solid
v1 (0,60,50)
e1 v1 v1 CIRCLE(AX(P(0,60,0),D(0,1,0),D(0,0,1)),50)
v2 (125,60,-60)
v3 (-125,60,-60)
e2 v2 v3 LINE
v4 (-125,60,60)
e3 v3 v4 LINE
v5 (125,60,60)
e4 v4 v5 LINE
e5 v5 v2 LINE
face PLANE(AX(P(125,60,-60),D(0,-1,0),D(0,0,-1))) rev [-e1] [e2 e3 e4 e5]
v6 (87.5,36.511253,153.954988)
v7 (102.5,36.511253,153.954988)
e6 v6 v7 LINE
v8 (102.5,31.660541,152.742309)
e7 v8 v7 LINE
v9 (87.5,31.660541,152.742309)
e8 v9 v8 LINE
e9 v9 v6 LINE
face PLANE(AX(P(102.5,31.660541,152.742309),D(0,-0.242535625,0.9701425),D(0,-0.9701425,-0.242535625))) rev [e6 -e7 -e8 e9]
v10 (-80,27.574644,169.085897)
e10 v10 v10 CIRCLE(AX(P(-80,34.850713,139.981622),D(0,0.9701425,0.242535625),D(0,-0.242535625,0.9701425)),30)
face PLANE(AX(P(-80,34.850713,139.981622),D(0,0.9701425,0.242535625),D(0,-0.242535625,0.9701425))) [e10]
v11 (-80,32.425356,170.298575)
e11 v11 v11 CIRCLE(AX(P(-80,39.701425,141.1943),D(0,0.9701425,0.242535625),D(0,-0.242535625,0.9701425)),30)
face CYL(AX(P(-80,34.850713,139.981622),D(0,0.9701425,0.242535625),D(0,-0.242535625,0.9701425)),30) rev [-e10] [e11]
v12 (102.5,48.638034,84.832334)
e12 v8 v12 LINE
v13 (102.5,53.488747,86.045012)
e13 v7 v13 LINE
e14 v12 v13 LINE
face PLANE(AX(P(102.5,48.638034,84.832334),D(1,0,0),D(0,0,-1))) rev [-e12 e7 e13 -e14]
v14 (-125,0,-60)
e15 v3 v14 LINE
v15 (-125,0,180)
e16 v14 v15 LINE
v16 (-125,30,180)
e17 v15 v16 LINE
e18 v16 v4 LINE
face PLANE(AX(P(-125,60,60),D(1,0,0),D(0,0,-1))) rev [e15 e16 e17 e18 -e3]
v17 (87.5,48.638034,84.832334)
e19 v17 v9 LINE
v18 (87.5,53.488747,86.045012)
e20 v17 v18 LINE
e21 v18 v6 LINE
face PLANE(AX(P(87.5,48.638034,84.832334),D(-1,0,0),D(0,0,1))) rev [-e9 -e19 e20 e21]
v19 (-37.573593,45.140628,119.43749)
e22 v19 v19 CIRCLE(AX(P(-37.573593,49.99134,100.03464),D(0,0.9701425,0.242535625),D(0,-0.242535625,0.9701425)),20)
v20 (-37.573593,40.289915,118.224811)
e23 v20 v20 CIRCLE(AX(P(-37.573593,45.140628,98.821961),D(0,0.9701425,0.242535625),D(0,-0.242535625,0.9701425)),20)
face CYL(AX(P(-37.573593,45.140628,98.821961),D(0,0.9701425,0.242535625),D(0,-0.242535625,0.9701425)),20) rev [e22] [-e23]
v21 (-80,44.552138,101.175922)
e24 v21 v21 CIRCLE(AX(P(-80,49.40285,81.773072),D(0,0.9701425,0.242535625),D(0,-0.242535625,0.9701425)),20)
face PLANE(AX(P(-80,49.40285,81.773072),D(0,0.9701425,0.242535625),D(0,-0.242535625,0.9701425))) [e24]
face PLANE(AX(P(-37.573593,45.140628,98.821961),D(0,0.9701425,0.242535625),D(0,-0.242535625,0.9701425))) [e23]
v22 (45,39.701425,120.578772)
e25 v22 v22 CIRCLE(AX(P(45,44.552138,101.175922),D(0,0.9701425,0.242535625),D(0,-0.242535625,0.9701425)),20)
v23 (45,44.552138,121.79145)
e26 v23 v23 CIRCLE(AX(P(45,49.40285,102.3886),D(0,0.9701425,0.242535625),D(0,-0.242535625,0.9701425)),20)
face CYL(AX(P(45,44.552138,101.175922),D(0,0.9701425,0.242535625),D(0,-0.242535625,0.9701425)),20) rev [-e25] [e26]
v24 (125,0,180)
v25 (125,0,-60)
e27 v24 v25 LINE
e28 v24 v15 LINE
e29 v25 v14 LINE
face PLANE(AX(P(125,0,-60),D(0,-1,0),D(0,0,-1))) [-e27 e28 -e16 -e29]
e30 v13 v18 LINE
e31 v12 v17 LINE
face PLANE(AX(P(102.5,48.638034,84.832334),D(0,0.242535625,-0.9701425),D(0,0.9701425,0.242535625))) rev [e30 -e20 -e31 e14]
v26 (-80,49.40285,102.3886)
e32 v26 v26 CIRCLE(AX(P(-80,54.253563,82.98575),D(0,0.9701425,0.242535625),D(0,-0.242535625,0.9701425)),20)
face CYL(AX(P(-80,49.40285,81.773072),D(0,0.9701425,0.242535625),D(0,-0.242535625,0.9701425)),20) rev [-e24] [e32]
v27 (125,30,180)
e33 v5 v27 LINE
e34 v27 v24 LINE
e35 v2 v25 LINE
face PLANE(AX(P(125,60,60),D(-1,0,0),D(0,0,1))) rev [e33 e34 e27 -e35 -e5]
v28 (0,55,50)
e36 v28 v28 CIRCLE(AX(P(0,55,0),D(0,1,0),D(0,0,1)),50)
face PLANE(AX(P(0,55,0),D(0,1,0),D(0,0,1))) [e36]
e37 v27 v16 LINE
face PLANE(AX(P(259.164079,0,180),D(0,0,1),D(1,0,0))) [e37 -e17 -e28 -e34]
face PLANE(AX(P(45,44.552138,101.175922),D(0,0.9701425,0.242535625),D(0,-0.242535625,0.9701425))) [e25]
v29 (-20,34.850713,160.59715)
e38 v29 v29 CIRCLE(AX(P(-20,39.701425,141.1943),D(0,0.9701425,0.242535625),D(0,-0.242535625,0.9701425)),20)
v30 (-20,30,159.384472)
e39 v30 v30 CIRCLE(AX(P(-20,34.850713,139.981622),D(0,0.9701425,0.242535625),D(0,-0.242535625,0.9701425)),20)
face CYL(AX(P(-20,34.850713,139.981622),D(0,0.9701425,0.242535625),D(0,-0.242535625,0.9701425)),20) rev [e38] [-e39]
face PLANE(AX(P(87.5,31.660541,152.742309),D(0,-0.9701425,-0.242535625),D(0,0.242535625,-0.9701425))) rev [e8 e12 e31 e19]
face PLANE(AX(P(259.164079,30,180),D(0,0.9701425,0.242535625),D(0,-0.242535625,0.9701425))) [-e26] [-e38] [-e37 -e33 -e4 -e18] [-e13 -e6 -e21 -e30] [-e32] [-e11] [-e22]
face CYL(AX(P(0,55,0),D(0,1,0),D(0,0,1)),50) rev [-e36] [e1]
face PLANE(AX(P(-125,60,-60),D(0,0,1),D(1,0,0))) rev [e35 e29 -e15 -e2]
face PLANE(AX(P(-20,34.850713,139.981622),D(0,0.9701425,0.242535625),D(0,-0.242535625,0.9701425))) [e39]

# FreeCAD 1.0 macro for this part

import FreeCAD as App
import Part
import Sketcher
from FreeCAD import Vector
Q = App.Units.Quantity


def add_polygon(sketch, points):
    """Adds a closed chain of lines whose ends are joined by coincident constraints."""
    first, n = sketch.GeometryCount, len(points)
    for a, b in zip(points, points[1:] + points[:1]):
        sketch.addGeometry(Part.LineSegment(App.Vector(*a, 0), App.Vector(*b, 0)), False)
    for i in range(n):
        sketch.addConstraint(Sketcher.Constraint("Coincident", first + i, 2, first + (i + 1) % n, 1))

doc = App.newDocument("Part")
body = doc.addObject("PartDesign::Body", "Body")

# Sketch on XZ plane
sketch1 = doc.addObject("Sketcher::SketchObject", "Sketch")
body.addObject(sketch1)
sketch1.AttachmentSupport = (doc.XZ_Plane, [""])
sketch1.MapMode = "FlatFace"
add_polygon(sketch1, [(-125, -60), (-125, 60), (125, 60), (125, -60)])  # lines 0-3
sketch1.addConstraint(Sketcher.Constraint("Vertical", 0))
sketch1.addConstraint(Sketcher.Constraint("Horizontal", 1))
sketch1.addConstraint(Sketcher.Constraint("Vertical", 2))
sketch1.addConstraint(Sketcher.Constraint("Horizontal", 3))
sketch1.addConstraint(Sketcher.Constraint("Symmetric", 0, 2, 2, 2, -1, 1))
sketch1.addConstraint(Sketcher.Constraint("DistanceX", 1, 1, 1, 2, Q("250 mm")))
sketch1.addConstraint(Sketcher.Constraint("DistanceY", 0, 1, 0, 2, Q("120 mm")))
pad1 = doc.addObject("PartDesign::Pad", "Pad")
body.addObject(pad1)
pad1.Profile = sketch1
pad1.Length = 60
pad1.Reversed = True

# Sketch on YZ plane
sketch2 = doc.addObject("Sketcher::SketchObject", "Sketch001")
body.addObject(sketch2)
sketch2.AttachmentSupport = (doc.YZ_Plane, [""])
sketch2.MapMode = "FlatFace"
sketch2.AttachmentOffset = App.Placement(Vector(0, 0, -125), App.Rotation())
add_polygon(sketch2, [(60, 60), (0, 60), (0, 180), (30, 180)])  # lines 0-3
sketch2.addConstraint(Sketcher.Constraint("Horizontal", 0))
sketch2.addConstraint(Sketcher.Constraint("Vertical", 1))
sketch2.addConstraint(Sketcher.Constraint("Horizontal", 2))
sketch2.addConstraint(Sketcher.Constraint("PointOnObject", 0, 2, -2))
sketch2.addConstraint(Sketcher.Constraint("DistanceX", 0, 2, 0, 1, Q("60 mm")))
sketch2.addConstraint(Sketcher.Constraint("DistanceX", 2, 1, 2, 2, Q("30 mm")))
sketch2.addConstraint(Sketcher.Constraint("DistanceY", 1, 1, 1, 2, Q("120 mm")))
sketch2.addConstraint(Sketcher.Constraint("DistanceY", -1, 1, 0, 2, Q("60 mm")))
pad2 = doc.addObject("PartDesign::Pad", "Pad001")
body.addObject(pad2)
pad2.Profile = sketch2
pad2.Length = 250

# Sketch on XZ plane
sketch3 = doc.addObject("Sketcher::SketchObject", "Sketch002")
body.addObject(sketch3)
sketch3.AttachmentSupport = (doc.XZ_Plane, [""])
sketch3.MapMode = "FlatFace"
sketch3.AttachmentOffset = App.Placement(Vector(0, 0, -60), App.Rotation())
sketch3.addGeometry(Part.Circle(Vector(0, 0, 0), Vector(0, 0, 1), 50), False)
sketch3.addConstraint(Sketcher.Constraint("Coincident", 0, 3, -1, 1))
sketch3.addConstraint(Sketcher.Constraint("Diameter", 0, Q("100 mm")))
pocket1 = doc.addObject("PartDesign::Pocket", "Pocket")
body.addObject(pocket1)
pocket1.Profile = sketch3
pocket1.Length = 5
pocket1.Reversed = True

# Sketch on an angled plane
sketch4 = doc.addObject("Sketcher::SketchObject", "Sketch003")
body.addObject(sketch4)
sketch4.Placement = App.Placement(Vector(0, 70.588235, 17.647059), App.Rotation(Vector(-1, 0, 0), Vector(0, -0.242535625, 0.9701425), Vector(0, 0.9701425, 0.242535625), "ZXY"))
sketch4.addGeometry(Part.Circle(Vector(80, 127, 0), Vector(0, 0, 1), 30), False)  # 0
sketch4.addGeometry(Part.Circle(Vector(80, 67, 0), Vector(0, 0, 1), 20), False)  # 1
sketch4.addGeometry(Part.Circle(Vector(38, 85, 0), Vector(0, 0, 1), 20), False)  # 2
sketch4.addGeometry(Part.Circle(Vector(20, 127, 0), Vector(0, 0, 1), 20), False)  # 3
sketch4.addGeometry(Part.Circle(Vector(-45, 87, 0), Vector(0, 0, 1), 20), False)  # 4
add_polygon(sketch4, [(-102, 141), (-102, 71), (-88, 71), (-88, 141)])  # lines 5-8
sketch4.addConstraint(Sketcher.Constraint("Vertical", 5))
sketch4.addConstraint(Sketcher.Constraint("Horizontal", 6))
sketch4.addConstraint(Sketcher.Constraint("Vertical", 7))
sketch4.addConstraint(Sketcher.Constraint("Horizontal", 8))
sketch4.addConstraint(Sketcher.Constraint("Equal", 1, 2))
sketch4.addConstraint(Sketcher.Constraint("Equal", 2, 3))
sketch4.addConstraint(Sketcher.Constraint("Equal", 3, 4))
sketch4.addConstraint(Sketcher.Constraint("Horizontal", 0, 3, 3, 3))
sketch4.addConstraint(Sketcher.Constraint("Vertical", 0, 3, 1, 3))
sketch4.addConstraint(Sketcher.Constraint("Diameter", 0, Q("60 mm")))
sketch4.addConstraint(Sketcher.Constraint("Diameter", 1, Q("40 mm")))
sketch4.addConstraint(Sketcher.Constraint("DistanceX", 6, 1, 6, 2, Q("15 mm")))
sketch4.addConstraint(Sketcher.Constraint("DistanceY", 5, 2, 5, 1, Q("70 mm")))
sketch4.addConstraint(Sketcher.Constraint("DistanceX", -1, 1, 0, 3, Q("80 mm")))
sketch4.addConstraint(Sketcher.Constraint("DistanceX", -1, 1, 3, 3, Q("20 mm")))
sketch4.addConstraint(Sketcher.Constraint("DistanceX", 4, 3, -1, 1, Q("45 mm")))
sketch4.addConstraint(Sketcher.Constraint("DistanceY", 1, 3, 0, 3, Q("60 mm")))
sketch4.addConstraint(Sketcher.Constraint("DistanceY", 4, 3, 3, 3, Q("40 mm")))
sketch4.addConstraint(Sketcher.Constraint("DistanceX", 5, 2, -1, 1, Q("102.5 mm")))
sketch4.addConstraint(Sketcher.Constraint("DistanceY", -1, 1, 0, 3, Q("127.349581 mm")))
sketch4.addConstraint(Sketcher.Constraint("DistanceX", -1, 1, 2, 3, Q("37.573593 mm")))
sketch4.addConstraint(Sketcher.Constraint("DistanceY", -1, 1, 2, 3, Q("84.923174 mm")))
sketch4.addConstraint(Sketcher.Constraint("DistanceY", -1, 1, 5, 2, Q("70.502997 mm")))
pocket2 = doc.addObject("PartDesign::Pocket", "Pocket001")
body.addObject(pocket2)
pocket2.Profile = sketch4
pocket2.Length = 5

doc.recompute()
